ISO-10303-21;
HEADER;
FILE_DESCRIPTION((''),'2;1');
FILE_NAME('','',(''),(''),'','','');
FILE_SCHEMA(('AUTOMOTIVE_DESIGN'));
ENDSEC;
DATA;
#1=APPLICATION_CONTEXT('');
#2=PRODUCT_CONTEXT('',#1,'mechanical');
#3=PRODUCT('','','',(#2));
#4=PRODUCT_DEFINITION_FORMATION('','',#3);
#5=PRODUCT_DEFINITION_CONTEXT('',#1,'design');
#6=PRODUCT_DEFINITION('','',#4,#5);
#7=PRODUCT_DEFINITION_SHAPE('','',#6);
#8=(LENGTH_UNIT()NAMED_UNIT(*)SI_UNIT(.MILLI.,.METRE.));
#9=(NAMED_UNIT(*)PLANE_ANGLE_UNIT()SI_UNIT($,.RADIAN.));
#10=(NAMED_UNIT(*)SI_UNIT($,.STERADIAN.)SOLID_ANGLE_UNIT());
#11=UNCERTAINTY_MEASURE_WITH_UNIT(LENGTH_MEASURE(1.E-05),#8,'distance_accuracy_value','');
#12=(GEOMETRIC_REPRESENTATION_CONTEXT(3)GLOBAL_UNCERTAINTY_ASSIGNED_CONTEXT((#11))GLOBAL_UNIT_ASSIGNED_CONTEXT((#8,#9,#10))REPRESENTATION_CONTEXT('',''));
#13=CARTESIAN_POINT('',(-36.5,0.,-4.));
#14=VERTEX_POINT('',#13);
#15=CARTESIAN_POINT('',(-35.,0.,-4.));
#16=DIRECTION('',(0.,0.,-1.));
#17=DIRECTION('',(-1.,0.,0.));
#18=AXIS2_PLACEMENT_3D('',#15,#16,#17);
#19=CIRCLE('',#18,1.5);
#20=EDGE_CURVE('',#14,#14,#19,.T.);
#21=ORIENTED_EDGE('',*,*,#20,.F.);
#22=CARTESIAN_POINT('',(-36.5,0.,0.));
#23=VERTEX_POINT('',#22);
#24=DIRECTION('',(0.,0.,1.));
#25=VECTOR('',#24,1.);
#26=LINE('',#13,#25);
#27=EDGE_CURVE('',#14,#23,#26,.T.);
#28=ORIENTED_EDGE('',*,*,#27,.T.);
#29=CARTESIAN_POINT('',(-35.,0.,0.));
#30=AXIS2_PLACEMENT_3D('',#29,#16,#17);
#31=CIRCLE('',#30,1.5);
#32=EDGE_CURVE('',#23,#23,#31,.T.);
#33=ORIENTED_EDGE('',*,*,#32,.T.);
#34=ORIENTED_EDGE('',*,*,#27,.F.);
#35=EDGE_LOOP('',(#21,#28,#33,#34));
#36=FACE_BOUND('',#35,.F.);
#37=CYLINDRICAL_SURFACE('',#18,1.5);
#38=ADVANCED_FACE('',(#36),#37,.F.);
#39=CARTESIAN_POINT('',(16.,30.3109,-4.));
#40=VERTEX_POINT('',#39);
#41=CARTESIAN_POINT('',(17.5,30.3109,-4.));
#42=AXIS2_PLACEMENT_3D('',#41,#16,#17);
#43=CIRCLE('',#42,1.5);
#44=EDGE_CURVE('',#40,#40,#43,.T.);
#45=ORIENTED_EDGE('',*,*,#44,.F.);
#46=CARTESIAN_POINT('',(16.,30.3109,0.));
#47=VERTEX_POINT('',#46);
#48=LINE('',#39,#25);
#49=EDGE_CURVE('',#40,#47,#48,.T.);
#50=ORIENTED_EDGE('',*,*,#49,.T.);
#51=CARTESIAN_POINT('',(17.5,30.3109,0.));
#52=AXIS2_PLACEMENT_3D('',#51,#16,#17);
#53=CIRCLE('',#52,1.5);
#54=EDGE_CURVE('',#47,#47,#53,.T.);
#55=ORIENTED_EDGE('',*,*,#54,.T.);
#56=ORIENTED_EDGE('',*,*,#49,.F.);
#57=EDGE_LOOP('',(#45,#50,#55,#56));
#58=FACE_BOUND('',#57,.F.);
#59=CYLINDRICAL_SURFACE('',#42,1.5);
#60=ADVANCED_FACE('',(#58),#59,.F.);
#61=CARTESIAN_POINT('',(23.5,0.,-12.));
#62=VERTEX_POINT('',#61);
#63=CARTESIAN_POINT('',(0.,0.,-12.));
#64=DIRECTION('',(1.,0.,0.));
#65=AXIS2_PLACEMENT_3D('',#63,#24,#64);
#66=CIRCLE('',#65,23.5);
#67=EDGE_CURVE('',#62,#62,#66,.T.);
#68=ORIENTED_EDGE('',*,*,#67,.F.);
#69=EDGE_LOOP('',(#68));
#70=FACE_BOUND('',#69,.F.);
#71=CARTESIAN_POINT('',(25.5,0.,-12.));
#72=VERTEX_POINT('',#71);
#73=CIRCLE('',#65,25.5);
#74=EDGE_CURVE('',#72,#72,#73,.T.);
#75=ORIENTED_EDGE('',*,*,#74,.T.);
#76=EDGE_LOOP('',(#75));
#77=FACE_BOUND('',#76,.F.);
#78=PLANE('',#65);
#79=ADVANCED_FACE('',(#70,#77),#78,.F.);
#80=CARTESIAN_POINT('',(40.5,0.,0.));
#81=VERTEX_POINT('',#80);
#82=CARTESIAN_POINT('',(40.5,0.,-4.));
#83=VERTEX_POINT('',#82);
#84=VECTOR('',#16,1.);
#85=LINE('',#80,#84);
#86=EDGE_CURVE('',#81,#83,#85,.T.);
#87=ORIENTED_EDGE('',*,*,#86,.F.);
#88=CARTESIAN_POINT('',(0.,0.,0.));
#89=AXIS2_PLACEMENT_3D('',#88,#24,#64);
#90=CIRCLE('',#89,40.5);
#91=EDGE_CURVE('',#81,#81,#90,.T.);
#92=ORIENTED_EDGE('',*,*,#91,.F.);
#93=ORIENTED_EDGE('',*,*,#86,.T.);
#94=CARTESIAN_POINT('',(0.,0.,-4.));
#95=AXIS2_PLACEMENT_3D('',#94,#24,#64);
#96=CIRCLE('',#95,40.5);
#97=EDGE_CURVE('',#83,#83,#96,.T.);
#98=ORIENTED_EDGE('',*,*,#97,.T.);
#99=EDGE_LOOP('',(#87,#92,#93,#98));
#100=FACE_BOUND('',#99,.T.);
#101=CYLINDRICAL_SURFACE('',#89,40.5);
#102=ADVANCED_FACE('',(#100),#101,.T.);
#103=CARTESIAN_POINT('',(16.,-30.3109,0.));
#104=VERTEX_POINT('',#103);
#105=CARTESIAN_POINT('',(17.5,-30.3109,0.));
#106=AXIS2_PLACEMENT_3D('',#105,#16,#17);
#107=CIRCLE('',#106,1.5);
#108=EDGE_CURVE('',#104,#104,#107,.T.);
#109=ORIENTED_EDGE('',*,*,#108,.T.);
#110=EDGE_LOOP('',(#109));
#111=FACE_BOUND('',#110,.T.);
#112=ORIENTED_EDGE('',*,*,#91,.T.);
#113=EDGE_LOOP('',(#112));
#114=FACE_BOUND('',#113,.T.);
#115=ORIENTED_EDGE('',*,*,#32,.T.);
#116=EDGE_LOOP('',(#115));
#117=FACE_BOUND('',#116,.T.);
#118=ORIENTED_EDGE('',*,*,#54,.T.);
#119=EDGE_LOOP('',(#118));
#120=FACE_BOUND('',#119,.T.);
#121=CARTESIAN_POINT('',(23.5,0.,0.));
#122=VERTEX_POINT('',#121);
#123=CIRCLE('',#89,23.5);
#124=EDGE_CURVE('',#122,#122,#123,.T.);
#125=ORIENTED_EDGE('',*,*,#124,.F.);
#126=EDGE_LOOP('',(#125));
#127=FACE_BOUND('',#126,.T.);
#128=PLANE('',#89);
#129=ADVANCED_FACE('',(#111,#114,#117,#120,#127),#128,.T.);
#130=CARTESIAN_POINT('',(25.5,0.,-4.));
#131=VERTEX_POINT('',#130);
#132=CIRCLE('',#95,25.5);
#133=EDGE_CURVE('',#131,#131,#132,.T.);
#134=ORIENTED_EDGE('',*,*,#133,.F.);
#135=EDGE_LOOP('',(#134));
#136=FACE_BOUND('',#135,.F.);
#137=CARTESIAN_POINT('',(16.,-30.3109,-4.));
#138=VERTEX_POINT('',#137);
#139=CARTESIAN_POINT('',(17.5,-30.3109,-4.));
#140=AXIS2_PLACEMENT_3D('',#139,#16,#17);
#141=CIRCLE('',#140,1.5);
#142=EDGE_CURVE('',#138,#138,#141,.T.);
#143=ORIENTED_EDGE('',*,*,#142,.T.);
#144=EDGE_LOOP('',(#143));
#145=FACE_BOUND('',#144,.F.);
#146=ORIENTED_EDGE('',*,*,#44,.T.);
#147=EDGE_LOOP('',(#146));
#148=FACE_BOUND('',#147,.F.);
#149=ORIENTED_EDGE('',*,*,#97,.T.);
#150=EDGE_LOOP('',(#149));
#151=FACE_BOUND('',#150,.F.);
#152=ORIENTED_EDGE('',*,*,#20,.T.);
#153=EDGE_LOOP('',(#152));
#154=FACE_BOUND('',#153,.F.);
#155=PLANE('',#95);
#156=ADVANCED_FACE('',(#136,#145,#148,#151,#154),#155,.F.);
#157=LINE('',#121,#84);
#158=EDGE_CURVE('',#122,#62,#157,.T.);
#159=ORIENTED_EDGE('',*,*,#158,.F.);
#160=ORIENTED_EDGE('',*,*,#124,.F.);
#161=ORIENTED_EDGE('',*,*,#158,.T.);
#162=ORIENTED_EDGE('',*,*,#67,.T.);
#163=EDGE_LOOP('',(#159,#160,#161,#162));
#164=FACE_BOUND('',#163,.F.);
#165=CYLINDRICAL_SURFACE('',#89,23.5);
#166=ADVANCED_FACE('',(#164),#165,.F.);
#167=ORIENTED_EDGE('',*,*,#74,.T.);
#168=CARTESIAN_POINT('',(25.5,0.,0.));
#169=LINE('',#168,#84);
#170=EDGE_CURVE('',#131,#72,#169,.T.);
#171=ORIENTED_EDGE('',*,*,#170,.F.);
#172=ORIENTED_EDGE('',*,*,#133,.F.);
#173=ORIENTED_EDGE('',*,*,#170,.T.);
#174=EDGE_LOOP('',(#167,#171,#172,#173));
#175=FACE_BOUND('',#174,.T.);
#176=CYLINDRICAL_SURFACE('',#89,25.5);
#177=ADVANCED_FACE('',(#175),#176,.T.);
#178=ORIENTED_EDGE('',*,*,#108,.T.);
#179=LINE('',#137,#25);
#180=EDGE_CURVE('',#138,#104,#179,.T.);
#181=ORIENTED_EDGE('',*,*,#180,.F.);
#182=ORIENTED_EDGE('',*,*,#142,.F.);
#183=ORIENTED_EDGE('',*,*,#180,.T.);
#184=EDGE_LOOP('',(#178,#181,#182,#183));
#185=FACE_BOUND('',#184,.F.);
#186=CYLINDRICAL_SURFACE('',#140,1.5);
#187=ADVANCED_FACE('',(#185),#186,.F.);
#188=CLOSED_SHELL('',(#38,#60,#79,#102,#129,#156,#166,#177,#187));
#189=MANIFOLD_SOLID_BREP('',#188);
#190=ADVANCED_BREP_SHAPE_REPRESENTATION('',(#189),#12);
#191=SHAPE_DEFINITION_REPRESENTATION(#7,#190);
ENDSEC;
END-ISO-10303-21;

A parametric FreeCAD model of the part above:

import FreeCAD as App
import Part
import Sketcher
from FreeCAD import Vector
Q = App.Units.Quantity

doc = App.newDocument("Part")
body = doc.addObject("PartDesign::Body", "Body")

# Sketch on XY plane
sketch1 = body.newObject("Sketcher::SketchObject", "Sketch")
sketch1.AttachmentSupport = (doc.getObject("XY_Plane"), [""])
sketch1.MapMode = "FlatFace"
sketch1.addGeometry([
    Part.Circle(Vector(0, 0, 0), Vector(0, 0, 1), 40),
    Part.Circle(Vector(0, 0, 0), Vector(0, 0, 1), 26),
], False)
sketch1.addConstraint([
    Sketcher.Constraint("Coincident", 0, 3, -1, 1),
    Sketcher.Constraint("Coincident", 1, 3, -1, 1),
    Sketcher.Constraint("Diameter", 0, Q("81 mm")),
    Sketcher.Constraint("Diameter", 1, Q("51 mm")),
])
pad1 = body.newObject("PartDesign::Pad", "Pad")
pad1.Profile = sketch1
pad1.Length = 4
pad1.Reversed = True

# Sketch on XY plane
sketch2 = body.newObject("Sketcher::SketchObject", "Sketch001")
sketch2.AttachmentSupport = (doc.getObject("XY_Plane"), [""])
sketch2.MapMode = "FlatFace"
sketch2.addGeometry([
    Part.Circle(Vector(0, 0, 0), Vector(0, 0, 1), 26),
    Part.Circle(Vector(0, 0, 0), Vector(0, 0, 1), 24),
], False)
sketch2.addConstraint([
    Sketcher.Constraint("Coincident", 0, 3, -1, 1),
    Sketcher.Constraint("Coincident", 1, 3, -1, 1),
    Sketcher.Constraint("Diameter", 0, Q("51 mm")),
    Sketcher.Constraint("Diameter", 1, Q("47 mm")),
])
pad2 = body.newObject("PartDesign::Pad", "Pad001")
pad2.Profile = sketch2
pad2.Length = 12
pad2.Reversed = True

# Sketch on XY plane
sketch3 = body.newObject("Sketcher::SketchObject", "Sketch002")
sketch3.AttachmentSupport = (doc.getObject("XY_Plane"), [""])
sketch3.MapMode = "FlatFace"
sketch3.AttachmentOffset = App.Placement(Vector(0, 0, -4), App.Rotation())
sketch3.addGeometry([
    Part.Circle(Vector(-35, 0, 0), Vector(0, 0, 1), 1.5),
    Part.Circle(Vector(17.5, 30.3, 0), Vector(0, 0, 1), 1.5),
    Part.Circle(Vector(17.5, -30.3, 0), Vector(0, 0, 1), 1.5),
], False)
sketch3.addConstraint([
    Sketcher.Constraint("Equal", 0, 1),
    Sketcher.Constraint("Equal", 1, 2),
    Sketcher.Constraint("Symmetric", 1, 3, 2, 3, -1),
    Sketcher.Constraint("PointOnObject", 0, 3, -1),
    Sketcher.Constraint("Diameter", 0, Q("3 mm")),
    Sketcher.Constraint("DistanceX", 0, 3, -1, 1, Q("35 mm")),
    Sketcher.Constraint("DistanceX", -1, 1, 1, 3, Q("17.5 mm")),
    Sketcher.Constraint("DistanceY", -1, 1, 1, 3, Q("30.311 mm")),
])
pocket1 = body.newObject("PartDesign::Pocket", "Pocket")
pocket1.Profile = sketch3
pocket1.Length = 12
pocket1.Reversed = True

doc.recompute()
